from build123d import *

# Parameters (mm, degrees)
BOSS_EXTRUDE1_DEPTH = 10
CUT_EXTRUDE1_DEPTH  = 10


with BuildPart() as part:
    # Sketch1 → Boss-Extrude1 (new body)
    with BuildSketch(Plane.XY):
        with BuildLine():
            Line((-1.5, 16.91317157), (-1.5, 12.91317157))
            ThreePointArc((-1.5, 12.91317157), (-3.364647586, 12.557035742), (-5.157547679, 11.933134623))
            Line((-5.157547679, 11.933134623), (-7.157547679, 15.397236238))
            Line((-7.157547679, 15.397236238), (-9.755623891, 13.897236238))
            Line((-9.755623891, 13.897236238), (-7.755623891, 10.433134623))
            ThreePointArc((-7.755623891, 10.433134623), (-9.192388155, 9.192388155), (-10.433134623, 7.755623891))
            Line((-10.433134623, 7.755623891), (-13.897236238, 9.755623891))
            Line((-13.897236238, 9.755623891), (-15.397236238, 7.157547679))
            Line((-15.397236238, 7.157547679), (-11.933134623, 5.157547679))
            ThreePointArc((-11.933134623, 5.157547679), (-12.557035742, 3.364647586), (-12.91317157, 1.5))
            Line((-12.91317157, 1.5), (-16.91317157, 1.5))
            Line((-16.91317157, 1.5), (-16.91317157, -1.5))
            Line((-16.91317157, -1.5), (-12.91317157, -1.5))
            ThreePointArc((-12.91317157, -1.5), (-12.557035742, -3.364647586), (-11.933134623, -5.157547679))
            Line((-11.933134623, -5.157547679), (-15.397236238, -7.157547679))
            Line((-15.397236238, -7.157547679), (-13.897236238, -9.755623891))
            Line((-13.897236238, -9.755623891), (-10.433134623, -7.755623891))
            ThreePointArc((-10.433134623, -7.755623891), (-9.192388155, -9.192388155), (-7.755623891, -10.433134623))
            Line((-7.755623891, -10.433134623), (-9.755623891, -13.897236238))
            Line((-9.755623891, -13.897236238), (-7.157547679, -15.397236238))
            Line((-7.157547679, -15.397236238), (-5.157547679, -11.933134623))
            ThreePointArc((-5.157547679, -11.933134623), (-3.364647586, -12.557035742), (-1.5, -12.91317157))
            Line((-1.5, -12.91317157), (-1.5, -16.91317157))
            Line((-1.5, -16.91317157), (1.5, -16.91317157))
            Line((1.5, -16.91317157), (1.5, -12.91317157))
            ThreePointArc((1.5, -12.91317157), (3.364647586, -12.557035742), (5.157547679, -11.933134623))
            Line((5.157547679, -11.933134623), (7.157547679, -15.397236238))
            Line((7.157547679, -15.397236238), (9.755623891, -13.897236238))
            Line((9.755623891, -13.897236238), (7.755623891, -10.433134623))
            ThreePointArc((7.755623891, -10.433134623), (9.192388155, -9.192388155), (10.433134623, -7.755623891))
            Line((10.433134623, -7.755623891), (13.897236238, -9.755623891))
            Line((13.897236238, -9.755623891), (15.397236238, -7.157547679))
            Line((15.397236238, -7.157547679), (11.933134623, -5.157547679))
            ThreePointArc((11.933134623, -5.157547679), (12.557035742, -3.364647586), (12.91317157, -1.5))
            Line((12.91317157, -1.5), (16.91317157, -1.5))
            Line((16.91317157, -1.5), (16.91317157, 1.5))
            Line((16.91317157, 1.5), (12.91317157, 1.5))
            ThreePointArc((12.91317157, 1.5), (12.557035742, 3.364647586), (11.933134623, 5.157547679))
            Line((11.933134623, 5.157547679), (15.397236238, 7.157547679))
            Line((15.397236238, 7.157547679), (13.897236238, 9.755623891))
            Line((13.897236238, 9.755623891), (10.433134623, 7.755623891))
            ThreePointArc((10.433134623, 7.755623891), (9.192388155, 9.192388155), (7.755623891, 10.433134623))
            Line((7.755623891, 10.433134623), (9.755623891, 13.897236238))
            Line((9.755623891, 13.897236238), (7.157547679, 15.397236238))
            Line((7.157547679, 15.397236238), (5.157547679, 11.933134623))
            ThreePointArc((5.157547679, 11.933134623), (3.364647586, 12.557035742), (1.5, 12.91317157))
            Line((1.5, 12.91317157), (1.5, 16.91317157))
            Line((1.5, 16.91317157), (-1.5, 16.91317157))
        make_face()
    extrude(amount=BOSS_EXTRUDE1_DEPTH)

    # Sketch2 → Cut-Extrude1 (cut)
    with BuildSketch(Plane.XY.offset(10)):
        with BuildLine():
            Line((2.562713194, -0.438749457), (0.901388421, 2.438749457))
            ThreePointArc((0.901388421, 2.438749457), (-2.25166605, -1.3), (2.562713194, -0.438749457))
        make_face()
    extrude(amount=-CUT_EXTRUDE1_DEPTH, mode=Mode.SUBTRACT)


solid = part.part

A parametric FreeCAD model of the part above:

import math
import FreeCAD as App
import Part
import Sketcher

V = App.Vector
Q = App.Units.Quantity

doc = App.newDocument("Part")
body = doc.addObject("PartDesign::Body", "Body")

sketch1 = doc.addObject("Sketcher::SketchObject", "Sketch")
body.addObject(sketch1)
sketch1.AttachmentSupport = (doc.XY_Plane, [""])
sketch1.MapMode = "FlatFace"
sketch1.addGeometry(Part.LineSegment(V(-1.5, 16.913172, 0), V(-1.5, 12.913172, 0)), False)
sketch1.addGeometry(Part.ArcOfCircle(Part.Circle(V(0, 0, 0), V(0, 0, 1), 13), math.radians(96.62581), math.radians(113.37419)), False)
sketch1.addGeometry(Part.LineSegment(V(-5.157548, 11.933135, 0), V(-7.157548, 15.397236, 0)), False)
sketch1.addGeometry(Part.LineSegment(V(-7.157548, 15.397236, 0), V(-9.755624, 13.897236, 0)), False)
sketch1.addGeometry(Part.LineSegment(V(-9.755624, 13.897236, 0), V(-7.755624, 10.433135, 0)), False)
sketch1.addGeometry(Part.ArcOfCircle(Part.Circle(V(0, 0, 0), V(0, 0, 1), 13), math.radians(126.62581), math.radians(143.37419)), False)
sketch1.addGeometry(Part.LineSegment(V(-10.433135, 7.755624, 0), V(-13.897236, 9.755624, 0)), False)
sketch1.addGeometry(Part.LineSegment(V(-13.897236, 9.755624, 0), V(-15.397236, 7.157548, 0)), False)
sketch1.addGeometry(Part.LineSegment(V(-15.397236, 7.157548, 0), V(-11.933135, 5.157548, 0)), False)
sketch1.addGeometry(Part.ArcOfCircle(Part.Circle(V(0, 0, 0), V(0, 0, 1), 13), math.radians(156.62581), math.radians(173.37419)), False)
sketch1.addGeometry(Part.LineSegment(V(-12.913172, 1.5, 0), V(-16.913172, 1.5, 0)), False)
sketch1.addGeometry(Part.LineSegment(V(-16.913172, 1.5, 0), V(-16.913172, -1.5, 0)), False)
sketch1.addGeometry(Part.LineSegment(V(-16.913172, -1.5, 0), V(-12.913172, -1.5, 0)), False)
sketch1.addGeometry(Part.ArcOfCircle(Part.Circle(V(0, 0, 0), V(0, 0, 1), 13), math.radians(-173.37419), math.radians(-156.62581)), False)
sketch1.addGeometry(Part.LineSegment(V(-11.933135, -5.157548, 0), V(-15.397236, -7.157548, 0)), False)
sketch1.addGeometry(Part.LineSegment(V(-15.397236, -7.157548, 0), V(-13.897236, -9.755624, 0)), False)
sketch1.addGeometry(Part.LineSegment(V(-13.897236, -9.755624, 0), V(-10.433135, -7.755624, 0)), False)
sketch1.addGeometry(Part.ArcOfCircle(Part.Circle(V(0, 0, 0), V(0, 0, 1), 13), math.radians(-143.37419), math.radians(-126.62581)), False)
sketch1.addGeometry(Part.LineSegment(V(-7.755624, -10.433135, 0), V(-9.755624, -13.897236, 0)), False)
sketch1.addGeometry(Part.LineSegment(V(-9.755624, -13.897236, 0), V(-7.157548, -15.397236, 0)), False)
sketch1.addGeometry(Part.LineSegment(V(-7.157548, -15.397236, 0), V(-5.157548, -11.933135, 0)), False)
sketch1.addGeometry(Part.ArcOfCircle(Part.Circle(V(0, 0, 0), V(0, 0, 1), 13), math.radians(-113.37419), math.radians(-96.62581)), False)
sketch1.addGeometry(Part.LineSegment(V(-1.5, -12.913172, 0), V(-1.5, -16.913172, 0)), False)
sketch1.addGeometry(Part.LineSegment(V(-1.5, -16.913172, 0), V(1.5, -16.913172, 0)), False)
sketch1.addGeometry(Part.LineSegment(V(1.5, -16.913172, 0), V(1.5, -12.913172, 0)), False)
sketch1.addGeometry(Part.ArcOfCircle(Part.Circle(V(0, 0, 0), V(0, 0, 1), 13), math.radians(-83.37419), math.radians(-66.62581)), False)
sketch1.addGeometry(Part.LineSegment(V(5.157548, -11.933135, 0), V(7.157548, -15.397236, 0)), False)
sketch1.addGeometry(Part.LineSegment(V(7.157548, -15.397236, 0), V(9.755624, -13.897236, 0)), False)
sketch1.addGeometry(Part.LineSegment(V(9.755624, -13.897236, 0), V(7.755624, -10.433135, 0)), False)
sketch1.addGeometry(Part.ArcOfCircle(Part.Circle(V(0, 0, 0), V(0, 0, 1), 13), math.radians(-53.37419), math.radians(-36.62581)), False)
sketch1.addGeometry(Part.LineSegment(V(10.433135, -7.755624, 0), V(13.897236, -9.755624, 0)), False)
sketch1.addGeometry(Part.LineSegment(V(13.897236, -9.755624, 0), V(15.397236, -7.157548, 0)), False)
sketch1.addGeometry(Part.LineSegment(V(15.397236, -7.157548, 0), V(11.933135, -5.157548, 0)), False)
sketch1.addGeometry(Part.ArcOfCircle(Part.Circle(V(0, 0, 0), V(0, 0, 1), 13), math.radians(-23.37419), math.radians(-6.62581)), False)
sketch1.addGeometry(Part.LineSegment(V(12.913172, -1.5, 0), V(16.913172, -1.5, 0)), False)
sketch1.addGeometry(Part.LineSegment(V(16.913172, -1.5, 0), V(16.913172, 1.5, 0)), False)
sketch1.addGeometry(Part.LineSegment(V(16.913172, 1.5, 0), V(12.913172, 1.5, 0)), False)
sketch1.addGeometry(Part.ArcOfCircle(Part.Circle(V(0, 0, 0), V(0, 0, 1), 13), math.radians(6.62581), math.radians(23.37419)), False)
sketch1.addGeometry(Part.LineSegment(V(11.933135, 5.157548, 0), V(15.397236, 7.157548, 0)), False)
sketch1.addGeometry(Part.LineSegment(V(15.397236, 7.157548, 0), V(13.897236, 9.755624, 0)), False)
sketch1.addGeometry(Part.LineSegment(V(13.897236, 9.755624, 0), V(10.433135, 7.755624, 0)), False)
sketch1.addGeometry(Part.ArcOfCircle(Part.Circle(V(0, 0, 0), V(0, 0, 1), 13), math.radians(36.62581), math.radians(53.37419)), False)
sketch1.addGeometry(Part.LineSegment(V(7.755624, 10.433135, 0), V(9.755624, 13.897236, 0)), False)
sketch1.addGeometry(Part.LineSegment(V(9.755624, 13.897236, 0), V(7.157548, 15.397236, 0)), False)
sketch1.addGeometry(Part.LineSegment(V(7.157548, 15.397236, 0), V(5.157548, 11.933135, 0)), False)
sketch1.addGeometry(Part.ArcOfCircle(Part.Circle(V(0, 0, 0), V(0, 0, 1), 13), math.radians(66.62581), math.radians(83.37419)), False)
sketch1.addGeometry(Part.LineSegment(V(1.5, 12.913172, 0), V(1.5, 16.913172, 0)), False)
sketch1.addGeometry(Part.LineSegment(V(1.5, 16.913172, 0), V(-1.5, 16.913172, 0)), False)
sketch1.addConstraint(Sketcher.Constraint("Coincident", 0, 2, 1, 1))
sketch1.addConstraint(Sketcher.Constraint("Coincident", 1, 2, 2, 1))
sketch1.addConstraint(Sketcher.Constraint("Coincident", 2, 2, 3, 1))
sketch1.addConstraint(Sketcher.Constraint("Coincident", 3, 2, 4, 1))
sketch1.addConstraint(Sketcher.Constraint("Coincident", 4, 2, 5, 1))
sketch1.addConstraint(Sketcher.Constraint("Coincident", 5, 2, 6, 1))
sketch1.addConstraint(Sketcher.Constraint("Coincident", 6, 2, 7, 1))
sketch1.addConstraint(Sketcher.Constraint("Coincident", 7, 2, 8, 1))
sketch1.addConstraint(Sketcher.Constraint("Coincident", 8, 2, 9, 1))
sketch1.addConstraint(Sketcher.Constraint("Coincident", 9, 2, 10, 1))
sketch1.addConstraint(Sketcher.Constraint("Coincident", 10, 2, 11, 1))
sketch1.addConstraint(Sketcher.Constraint("Coincident", 11, 2, 12, 1))
sketch1.addConstraint(Sketcher.Constraint("Coincident", 12, 2, 13, 1))
sketch1.addConstraint(Sketcher.Constraint("Coincident", 13, 2, 14, 1))
sketch1.addConstraint(Sketcher.Constraint("Coincident", 14, 2, 15, 1))
sketch1.addConstraint(Sketcher.Constraint("Coincident", 15, 2, 16, 1))
sketch1.addConstraint(Sketcher.Constraint("Coincident", 16, 2, 17, 1))
sketch1.addConstraint(Sketcher.Constraint("Coincident", 17, 2, 18, 1))
sketch1.addConstraint(Sketcher.Constraint("Coincident", 18, 2, 19, 1))
sketch1.addConstraint(Sketcher.Constraint("Coincident", 19, 2, 20, 1))
sketch1.addConstraint(Sketcher.Constraint("Coincident", 20, 2, 21, 1))
sketch1.addConstraint(Sketcher.Constraint("Coincident", 21, 2, 22, 1))
sketch1.addConstraint(Sketcher.Constraint("Coincident", 22, 2, 23, 1))
sketch1.addConstraint(Sketcher.Constraint("Coincident", 23, 2, 24, 1))
sketch1.addConstraint(Sketcher.Constraint("Coincident", 24, 2, 25, 1))
sketch1.addConstraint(Sketcher.Constraint("Coincident", 25, 2, 26, 1))
sketch1.addConstraint(Sketcher.Constraint("Coincident", 26, 2, 27, 1))
sketch1.addConstraint(Sketcher.Constraint("Coincident", 27, 2, 28, 1))
sketch1.addConstraint(Sketcher.Constraint("Coincident", 28, 2, 29, 1))
sketch1.addConstraint(Sketcher.Constraint("Coincident", 29, 2, 30, 1))
sketch1.addConstraint(Sketcher.Constraint("Coincident", 30, 2, 31, 1))
sketch1.addConstraint(Sketcher.Constraint("Coincident", 31, 2, 32, 1))
sketch1.addConstraint(Sketcher.Constraint("Coincident", 32, 2, 33, 1))
sketch1.addConstraint(Sketcher.Constraint("Coincident", 33, 2, 34, 1))
sketch1.addConstraint(Sketcher.Constraint("Coincident", 34, 2, 35, 1))
sketch1.addConstraint(Sketcher.Constraint("Coincident", 35, 2, 36, 1))
sketch1.addConstraint(Sketcher.Constraint("Coincident", 36, 2, 37, 1))
sketch1.addConstraint(Sketcher.Constraint("Coincident", 37, 2, 38, 1))
sketch1.addConstraint(Sketcher.Constraint("Coincident", 38, 2, 39, 1))
sketch1.addConstraint(Sketcher.Constraint("Coincident", 39, 2, 40, 1))
sketch1.addConstraint(Sketcher.Constraint("Coincident", 40, 2, 41, 1))
sketch1.addConstraint(Sketcher.Constraint("Coincident", 41, 2, 42, 1))
sketch1.addConstraint(Sketcher.Constraint("Coincident", 42, 2, 43, 1))
sketch1.addConstraint(Sketcher.Constraint("Coincident", 43, 2, 44, 1))
sketch1.addConstraint(Sketcher.Constraint("Coincident", 44, 2, 45, 1))
sketch1.addConstraint(Sketcher.Constraint("Coincident", 45, 2, 46, 1))
sketch1.addConstraint(Sketcher.Constraint("Coincident", 46, 2, 47, 1))
sketch1.addConstraint(Sketcher.Constraint("Coincident", 47, 2, 0, 1))
sketch1.addConstraint(Sketcher.Constraint("Vertical", 0))
sketch1.addConstraint(Sketcher.Constraint("Horizontal", 10))
sketch1.addConstraint(Sketcher.Constraint("Vertical", 11))
sketch1.addConstraint(Sketcher.Constraint("Horizontal", 12))
sketch1.addConstraint(Sketcher.Constraint("Vertical", 22))
sketch1.addConstraint(Sketcher.Constraint("Horizontal", 23))
sketch1.addConstraint(Sketcher.Constraint("Vertical", 24))
sketch1.addConstraint(Sketcher.Constraint("Horizontal", 34))
sketch1.addConstraint(Sketcher.Constraint("Vertical", 35))
sketch1.addConstraint(Sketcher.Constraint("Horizontal", 36))
sketch1.addConstraint(Sketcher.Constraint("Vertical", 46))
sketch1.addConstraint(Sketcher.Constraint("Horizontal", 47))
sketch1.addConstraint(Sketcher.Constraint("Coincident", 1, 3, -1, 1))
sketch1.addConstraint(Sketcher.Constraint("Coincident", 5, 3, -1, 1))
sketch1.addConstraint(Sketcher.Constraint("Coincident", 9, 3, -1, 1))
sketch1.addConstraint(Sketcher.Constraint("Coincident", 13, 3, -1, 1))
sketch1.addConstraint(Sketcher.Constraint("Coincident", 17, 3, -1, 1))
sketch1.addConstraint(Sketcher.Constraint("Coincident", 21, 3, -1, 1))
sketch1.addConstraint(Sketcher.Constraint("Coincident", 25, 3, -1, 1))
sketch1.addConstraint(Sketcher.Constraint("Coincident", 29, 3, -1, 1))
sketch1.addConstraint(Sketcher.Constraint("Coincident", 33, 3, -1, 1))
sketch1.addConstraint(Sketcher.Constraint("Coincident", 37, 3, -1, 1))
sketch1.addConstraint(Sketcher.Constraint("Coincident", 41, 3, -1, 1))
sketch1.addConstraint(Sketcher.Constraint("Coincident", 45, 3, -1, 1))
sketch1.addConstraint(Sketcher.Constraint("Equal", 1, 5))
sketch1.addConstraint(Sketcher.Constraint("Equal", 5, 9))
sketch1.addConstraint(Sketcher.Constraint("Equal", 9, 13))
sketch1.addConstraint(Sketcher.Constraint("Equal", 13, 17))
sketch1.addConstraint(Sketcher.Constraint("Equal", 17, 21))
sketch1.addConstraint(Sketcher.Constraint("Equal", 21, 25))
sketch1.addConstraint(Sketcher.Constraint("Equal", 25, 29))
sketch1.addConstraint(Sketcher.Constraint("Equal", 29, 33))
sketch1.addConstraint(Sketcher.Constraint("Equal", 33, 37))
sketch1.addConstraint(Sketcher.Constraint("Equal", 37, 41))
sketch1.addConstraint(Sketcher.Constraint("Equal", 41, 45))
sketch1.addConstraint(Sketcher.Constraint("Symmetric", 2, 2, 26, 2, -1, 1))
sketch1.addConstraint(Sketcher.Constraint("Symmetric", 3, 2, 27, 2, -1, 1))
sketch1.addConstraint(Sketcher.Constraint("Symmetric", 6, 2, 30, 2, -1, 1))
sketch1.addConstraint(Sketcher.Constraint("Symmetric", 7, 2, 31, 2, -1, 1))
sketch1.addConstraint(Sketcher.Constraint("Symmetric", 10, 2, 34, 2, -1, 1))
sketch1.addConstraint(Sketcher.Constraint("Symmetric", 14, 2, 38, 2, -1, 1))
sketch1.addConstraint(Sketcher.Constraint("Symmetric", 15, 2, 39, 2, -1, 1))
sketch1.addConstraint(Sketcher.Constraint("Symmetric", 18, 2, 42, 2, -1, 1))
sketch1.addConstraint(Sketcher.Constraint("Symmetric", 19, 2, 43, 2, -1, 1))
sketch1.addConstraint(Sketcher.Constraint("Symmetric", 22, 2, 46, 2, -1, 1))
sketch1.addConstraint(Sketcher.Constraint("Symmetric", 19, 2, 26, 2, -2))
sketch1.addConstraint(Sketcher.Constraint("Symmetric", 18, 2, 27, 2, -2))
sketch1.addConstraint(Sketcher.Constraint("Symmetric", 15, 2, 30, 2, -2))
sketch1.addConstraint(Sketcher.Constraint("Symmetric", 14, 2, 31, 2, -2))
sketch1.addConstraint(Sketcher.Constraint("Perpendicular", 2, 3))
sketch1.addConstraint(Sketcher.Constraint("Perpendicular", 3, 4))
sketch1.addConstraint(Sketcher.Constraint("Perpendicular", 6, 7))
sketch1.addConstraint(Sketcher.Constraint("Perpendicular", 7, 8))
sketch1.addConstraint(Sketcher.Constraint("Perpendicular", 4, 14))
sketch1.addConstraint(Sketcher.Constraint("Perpendicular", 14, 15))
sketch1.addConstraint(Sketcher.Constraint("Perpendicular", 15, 16))
sketch1.addConstraint(Sketcher.Constraint("Perpendicular", 8, 18))
sketch1.addConstraint(Sketcher.Constraint("Perpendicular", 19, 20))
sketch1.addConstraint(Sketcher.Constraint("Perpendicular", 16, 26))
sketch1.addConstraint(Sketcher.Constraint("Perpendicular", 27, 28))
sketch1.addConstraint(Sketcher.Constraint("Perpendicular", 20, 30))
sketch1.addConstraint(Sketcher.Constraint("Perpendicular", 31, 32))
sketch1.addConstraint(Sketcher.Constraint("Perpendicular", 28, 38))
sketch1.addConstraint(Sketcher.Constraint("Perpendicular", 39, 40))
sketch1.addConstraint(Sketcher.Constraint("Perpendicular", 32, 42))
sketch1.addConstraint(Sketcher.Constraint("Perpendicular", 43, 44))
sketch1.addConstraint(Sketcher.Constraint("Horizontal", 21, 2, 24, 2))
sketch1.addConstraint(Sketcher.Constraint("Horizontal", 12, 2, 33, 2))
sketch1.addConstraint(Sketcher.Constraint("Horizontal", 10, 2, 35, 2))
sketch1.addConstraint(Sketcher.Constraint("Horizontal", 0, 2, 45, 2))
sketch1.addConstraint(Sketcher.Constraint("Equal", 36, 0))
sketch1.addConstraint(Sketcher.Constraint("Equal", 47, 11))
sketch1.addConstraint(Sketcher.Constraint("Equal", 2, 4))
sketch1.addConstraint(Sketcher.Constraint("Equal", 4, 6))
sketch1.addConstraint(Sketcher.Constraint("Equal", 3, 7))
sketch1.addConstraint(Sketcher.Constraint("Equal", 6, 8))
sketch1.addConstraint(Sketcher.Constraint("Radius", 1, 13.0))
sketch1.addConstraint(Sketcher.Constraint("DistanceX", 10, 2, 10, 1, 4.0))
sketch1.addConstraint(Sketcher.Constraint("DistanceX", 23, 1, 23, 2, 3.0))
sketch1.addConstraint(Sketcher.Constraint("Angle", 2, Q("120 deg")))
sketch1.addConstraint(Sketcher.Constraint("Distance", 2, 4.0))
sketch1.addConstraint(Sketcher.Constraint("Distance", 3, 3.0))
pad1 = doc.addObject("PartDesign::Pad", "Pad")
body.addObject(pad1)
pad1.Profile = sketch1
pad1.Length = 10

sketch2 = doc.addObject("Sketcher::SketchObject", "Sketch001")
body.addObject(sketch2)
sketch2.AttachmentSupport = (doc.XY_Plane, [""])
sketch2.MapMode = "FlatFace"
sketch2.AttachmentOffset = App.Placement(V(0, 0, 10), App.Rotation())
sketch2.addGeometry(Part.LineSegment(V(2.562713, -0.438749, 0), V(0.901388, 2.438749, 0)), False)
sketch2.addGeometry(Part.ArcOfCircle(Part.Circle(V(0, 0, 0), V(0, 0, 1), 2.6), math.radians(69.715137), math.radians(350.284863)), False)
sketch2.addConstraint(Sketcher.Constraint("Coincident", 0, 1, 1, 2))
sketch2.addConstraint(Sketcher.Constraint("Coincident", 1, 1, 0, 2))
sketch2.addConstraint(Sketcher.Constraint("Coincident", 1, 3, -1, 1))
sketch2.addConstraint(Sketcher.Constraint("Radius", 1, 2.6))
sketch2.addConstraint(Sketcher.Constraint("Angle", 0, Q("120 deg")))
sketch2.addConstraint(Sketcher.Constraint("DistanceY", 0, 1, 1, 1, 2.877499))
pocket1 = doc.addObject("PartDesign::Pocket", "Pocket")
body.addObject(pocket1)
pocket1.Profile = sketch2
pocket1.Length = 10

doc.recompute()
